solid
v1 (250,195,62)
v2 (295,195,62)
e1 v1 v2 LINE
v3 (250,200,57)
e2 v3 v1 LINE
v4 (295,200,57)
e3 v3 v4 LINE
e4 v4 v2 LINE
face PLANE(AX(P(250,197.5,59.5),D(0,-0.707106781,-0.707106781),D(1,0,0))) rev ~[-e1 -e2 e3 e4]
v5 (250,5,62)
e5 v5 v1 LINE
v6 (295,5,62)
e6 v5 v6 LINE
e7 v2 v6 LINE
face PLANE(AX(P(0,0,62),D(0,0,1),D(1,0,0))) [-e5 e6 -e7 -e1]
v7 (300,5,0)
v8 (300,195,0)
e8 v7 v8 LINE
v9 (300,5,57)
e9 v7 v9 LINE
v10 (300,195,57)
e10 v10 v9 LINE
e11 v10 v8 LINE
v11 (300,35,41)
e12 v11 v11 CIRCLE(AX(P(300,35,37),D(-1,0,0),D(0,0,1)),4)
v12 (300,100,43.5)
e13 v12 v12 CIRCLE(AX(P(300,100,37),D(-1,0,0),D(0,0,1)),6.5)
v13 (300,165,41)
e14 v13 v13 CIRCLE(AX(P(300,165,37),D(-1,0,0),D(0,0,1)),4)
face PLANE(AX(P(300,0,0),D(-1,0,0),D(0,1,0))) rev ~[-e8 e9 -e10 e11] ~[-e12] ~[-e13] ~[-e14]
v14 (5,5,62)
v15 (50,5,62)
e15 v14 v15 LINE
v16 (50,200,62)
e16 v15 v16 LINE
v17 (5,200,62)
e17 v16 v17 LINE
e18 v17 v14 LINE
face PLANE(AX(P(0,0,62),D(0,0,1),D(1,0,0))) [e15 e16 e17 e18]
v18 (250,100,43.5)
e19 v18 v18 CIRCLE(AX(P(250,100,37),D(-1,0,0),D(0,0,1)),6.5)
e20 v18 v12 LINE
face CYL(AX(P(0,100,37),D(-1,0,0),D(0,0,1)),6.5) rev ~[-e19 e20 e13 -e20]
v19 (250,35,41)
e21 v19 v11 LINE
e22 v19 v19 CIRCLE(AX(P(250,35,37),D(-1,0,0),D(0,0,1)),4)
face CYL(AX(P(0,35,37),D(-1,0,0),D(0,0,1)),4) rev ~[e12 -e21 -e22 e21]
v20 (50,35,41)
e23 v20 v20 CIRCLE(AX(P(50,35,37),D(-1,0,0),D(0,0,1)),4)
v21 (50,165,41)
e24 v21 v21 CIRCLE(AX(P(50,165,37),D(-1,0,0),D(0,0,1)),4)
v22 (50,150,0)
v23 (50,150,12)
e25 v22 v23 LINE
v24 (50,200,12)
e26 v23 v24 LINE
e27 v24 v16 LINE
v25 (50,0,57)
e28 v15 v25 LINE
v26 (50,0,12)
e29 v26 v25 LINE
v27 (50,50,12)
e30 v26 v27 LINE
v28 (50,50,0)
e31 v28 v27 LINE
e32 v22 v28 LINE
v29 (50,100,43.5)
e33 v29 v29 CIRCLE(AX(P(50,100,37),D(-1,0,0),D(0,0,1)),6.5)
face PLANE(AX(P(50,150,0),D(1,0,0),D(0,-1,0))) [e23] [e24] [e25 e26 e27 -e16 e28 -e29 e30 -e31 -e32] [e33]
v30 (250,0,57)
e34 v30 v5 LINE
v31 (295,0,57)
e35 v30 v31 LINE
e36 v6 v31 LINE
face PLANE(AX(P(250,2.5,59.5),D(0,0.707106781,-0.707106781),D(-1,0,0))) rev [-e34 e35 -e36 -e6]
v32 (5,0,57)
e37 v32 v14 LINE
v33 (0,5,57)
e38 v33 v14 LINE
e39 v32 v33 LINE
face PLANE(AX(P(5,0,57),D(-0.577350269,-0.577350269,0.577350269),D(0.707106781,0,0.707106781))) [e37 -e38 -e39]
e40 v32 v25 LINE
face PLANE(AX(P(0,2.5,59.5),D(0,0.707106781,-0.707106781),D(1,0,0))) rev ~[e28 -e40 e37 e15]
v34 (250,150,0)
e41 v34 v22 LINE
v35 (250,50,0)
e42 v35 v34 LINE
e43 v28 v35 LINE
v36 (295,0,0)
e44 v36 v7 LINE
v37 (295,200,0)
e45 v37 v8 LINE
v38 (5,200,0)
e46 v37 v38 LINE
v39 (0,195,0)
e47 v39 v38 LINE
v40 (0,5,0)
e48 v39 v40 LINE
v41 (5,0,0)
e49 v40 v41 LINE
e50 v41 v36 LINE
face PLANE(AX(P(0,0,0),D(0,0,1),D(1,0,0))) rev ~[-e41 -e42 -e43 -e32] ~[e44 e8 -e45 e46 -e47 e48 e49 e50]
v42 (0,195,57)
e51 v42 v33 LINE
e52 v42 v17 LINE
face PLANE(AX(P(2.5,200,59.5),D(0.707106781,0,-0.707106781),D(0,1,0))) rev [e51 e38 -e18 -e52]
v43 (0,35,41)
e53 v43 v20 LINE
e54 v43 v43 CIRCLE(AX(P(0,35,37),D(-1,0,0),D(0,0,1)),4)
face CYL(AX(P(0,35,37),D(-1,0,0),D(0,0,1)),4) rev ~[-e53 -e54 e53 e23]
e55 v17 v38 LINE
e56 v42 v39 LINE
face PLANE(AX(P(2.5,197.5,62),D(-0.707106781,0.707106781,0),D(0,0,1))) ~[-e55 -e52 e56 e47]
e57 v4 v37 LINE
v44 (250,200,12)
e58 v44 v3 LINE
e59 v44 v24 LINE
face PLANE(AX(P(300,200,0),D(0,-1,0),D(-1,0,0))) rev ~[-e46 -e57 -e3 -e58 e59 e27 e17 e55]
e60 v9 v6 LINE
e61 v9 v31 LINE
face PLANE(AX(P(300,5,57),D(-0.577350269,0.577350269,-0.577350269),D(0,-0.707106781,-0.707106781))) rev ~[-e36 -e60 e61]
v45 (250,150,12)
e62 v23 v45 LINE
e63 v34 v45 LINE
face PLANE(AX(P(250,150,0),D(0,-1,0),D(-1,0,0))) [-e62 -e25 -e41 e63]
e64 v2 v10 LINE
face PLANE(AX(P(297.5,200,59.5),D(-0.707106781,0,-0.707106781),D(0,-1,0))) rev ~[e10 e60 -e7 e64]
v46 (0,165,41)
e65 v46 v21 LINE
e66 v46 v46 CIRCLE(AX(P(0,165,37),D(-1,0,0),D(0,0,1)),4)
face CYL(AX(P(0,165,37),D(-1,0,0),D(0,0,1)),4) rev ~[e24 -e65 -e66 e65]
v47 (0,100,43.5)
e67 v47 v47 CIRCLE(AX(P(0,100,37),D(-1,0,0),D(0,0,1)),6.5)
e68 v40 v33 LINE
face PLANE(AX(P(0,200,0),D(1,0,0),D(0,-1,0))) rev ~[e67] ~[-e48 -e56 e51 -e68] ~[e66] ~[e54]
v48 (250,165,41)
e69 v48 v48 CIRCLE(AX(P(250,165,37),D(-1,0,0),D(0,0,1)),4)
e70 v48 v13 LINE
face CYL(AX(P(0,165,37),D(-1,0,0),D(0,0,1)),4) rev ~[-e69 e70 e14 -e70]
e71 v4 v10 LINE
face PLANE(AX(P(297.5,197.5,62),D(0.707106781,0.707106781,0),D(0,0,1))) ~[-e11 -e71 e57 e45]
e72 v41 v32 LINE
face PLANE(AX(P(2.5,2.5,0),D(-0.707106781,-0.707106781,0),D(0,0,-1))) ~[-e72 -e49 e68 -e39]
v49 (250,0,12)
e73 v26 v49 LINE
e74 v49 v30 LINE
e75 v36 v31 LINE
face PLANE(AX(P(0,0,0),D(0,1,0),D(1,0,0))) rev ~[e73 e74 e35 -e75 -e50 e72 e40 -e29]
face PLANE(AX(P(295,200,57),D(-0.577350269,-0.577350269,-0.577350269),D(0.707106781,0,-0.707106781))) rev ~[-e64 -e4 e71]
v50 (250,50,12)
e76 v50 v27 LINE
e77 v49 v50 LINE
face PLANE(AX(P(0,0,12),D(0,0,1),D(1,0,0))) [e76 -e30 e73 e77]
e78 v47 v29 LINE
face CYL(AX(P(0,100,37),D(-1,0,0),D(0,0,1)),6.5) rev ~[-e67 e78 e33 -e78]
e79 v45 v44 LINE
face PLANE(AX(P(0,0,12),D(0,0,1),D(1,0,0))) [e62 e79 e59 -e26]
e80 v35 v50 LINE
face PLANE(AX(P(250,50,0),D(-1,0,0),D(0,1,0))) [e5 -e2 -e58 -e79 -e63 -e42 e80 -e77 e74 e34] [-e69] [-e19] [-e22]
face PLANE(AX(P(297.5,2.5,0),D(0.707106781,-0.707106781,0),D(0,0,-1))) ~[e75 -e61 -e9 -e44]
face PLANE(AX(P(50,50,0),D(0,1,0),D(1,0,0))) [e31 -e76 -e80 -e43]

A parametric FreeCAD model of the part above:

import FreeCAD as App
import Part
import Sketcher


def edges_at(feature, points):
    """Names of the edges that pass closest to the given points."""
    edges = feature.Shape.Edges
    near = lambda p: min(range(len(edges)), key=lambda i: edges[i].distToShape(Part.Vertex(*p))[0])
    return sorted({f"Edge{near(p) + 1}" for p in points})


def add_polygon(sketch, points):
    """Adds a closed chain of lines whose ends are joined by coincident constraints."""
    first, n = sketch.GeometryCount, len(points)
    for a, b in zip(points, points[1:] + points[:1]):
        sketch.addGeometry(Part.LineSegment(App.Vector(*a, 0), App.Vector(*b, 0)), False)
    for i in range(n):
        sketch.addConstraint(Sketcher.Constraint("Coincident", first + i, 2, first + (i + 1) % n, 1))

doc = App.newDocument("Part")
body = doc.addObject("PartDesign::Body", "Body")

# Sketch on XY plane
sketch1 = doc.addObject("Sketcher::SketchObject", "Sketch")
body.addObject(sketch1)
sketch1.AttachmentSupport = (doc.XY_Plane, [""])
sketch1.MapMode = "FlatFace"
add_polygon(sketch1, [(0, 200), (0, 0), (300, 0), (300, 200)])  # lines 0-3
sketch1.addConstraint(Sketcher.Constraint("Vertical", 0))
sketch1.addConstraint(Sketcher.Constraint("Horizontal", 1))
sketch1.addConstraint(Sketcher.Constraint("Vertical", 2))
sketch1.addConstraint(Sketcher.Constraint("Horizontal", 3))
sketch1.addConstraint(Sketcher.Constraint("Coincident", 0, 2, -1, 1))
sketch1.addConstraint(Sketcher.Constraint("DistanceX", 1, 1, 1, 2, 300.0))
sketch1.addConstraint(Sketcher.Constraint("DistanceY", 0, 2, 0, 1, 200.0))
pad1 = doc.addObject("PartDesign::Pad", "Pad")
body.addObject(pad1)
pad1.Profile = sketch1
pad1.Length = 12

# Sketch on XY plane
sketch2 = doc.addObject("Sketcher::SketchObject", "Sketch001")
body.addObject(sketch2)
sketch2.AttachmentSupport = (doc.XY_Plane, [""])
sketch2.MapMode = "FlatFace"
add_polygon(sketch2, [(50, 150), (250, 150), (250, 50), (50, 50)])  # lines 0-3
sketch2.addConstraint(Sketcher.Constraint("Horizontal", 0))
sketch2.addConstraint(Sketcher.Constraint("Vertical", 1))
sketch2.addConstraint(Sketcher.Constraint("Horizontal", 2))
sketch2.addConstraint(Sketcher.Constraint("Vertical", 3))
sketch2.addConstraint(Sketcher.Constraint("DistanceX", 0, 1, 0, 2, 200.0))
sketch2.addConstraint(Sketcher.Constraint("DistanceY", 1, 2, 1, 1, 100.0))
sketch2.addConstraint(Sketcher.Constraint("DistanceX", -1, 1, 0, 2, 250.0))
sketch2.addConstraint(Sketcher.Constraint("DistanceY", -1, 1, 0, 2, 150.0))
pocket1 = doc.addObject("PartDesign::Pocket", "Pocket")
body.addObject(pocket1)
pocket1.Profile = sketch2
pocket1.Length = 19
pocket1.Reversed = True

# Sketch on XY plane
sketch3 = doc.addObject("Sketcher::SketchObject", "Sketch002")
body.addObject(sketch3)
sketch3.AttachmentSupport = (doc.XY_Plane, [""])
sketch3.MapMode = "FlatFace"
sketch3.AttachmentOffset = App.Placement(App.Vector(0, 0, 12), App.Rotation())
add_polygon(sketch3, [(0, 200), (0, 0), (50, 0), (50, 200)])  # lines 0-3
add_polygon(sketch3, [(250, 200), (250, 0), (300, 0), (300, 200)])  # lines 4-7
sketch3.addConstraint(Sketcher.Constraint("Vertical", 0))
sketch3.addConstraint(Sketcher.Constraint("Horizontal", 1))
sketch3.addConstraint(Sketcher.Constraint("Vertical", 2))
sketch3.addConstraint(Sketcher.Constraint("Horizontal", 3))
sketch3.addConstraint(Sketcher.Constraint("Vertical", 4))
sketch3.addConstraint(Sketcher.Constraint("Horizontal", 5))
sketch3.addConstraint(Sketcher.Constraint("Vertical", 6))
sketch3.addConstraint(Sketcher.Constraint("Horizontal", 7))
sketch3.addConstraint(Sketcher.Constraint("Coincident", 0, 2, -1, 1))
sketch3.addConstraint(Sketcher.Constraint("PointOnObject", 4, 2, -1))
sketch3.addConstraint(Sketcher.Constraint("Horizontal", 3, 2, 6, 2))
sketch3.addConstraint(Sketcher.Constraint("Equal", 3, 5))
sketch3.addConstraint(Sketcher.Constraint("DistanceX", 1, 1, 1, 2, 50.0))
sketch3.addConstraint(Sketcher.Constraint("DistanceY", 0, 2, 0, 1, 200.0))
sketch3.addConstraint(Sketcher.Constraint("DistanceX", 1, 2, 4, 2, 200.0))
pad2 = doc.addObject("PartDesign::Pad", "Pad001")
body.addObject(pad2)
pad2.Profile = sketch3
pad2.Length = 50

# Sketch on YZ plane
sketch4 = doc.addObject("Sketcher::SketchObject", "Sketch003")
body.addObject(sketch4)
sketch4.AttachmentSupport = (doc.YZ_Plane, [""])
sketch4.MapMode = "FlatFace"
sketch4.addGeometry(Part.Circle(App.Vector(35, 37, 0), App.Vector(0, 0, 1), 4), False)
sketch4.addGeometry(Part.Circle(App.Vector(100, 37, 0), App.Vector(0, 0, 1), 6.5), False)
sketch4.addGeometry(Part.Circle(App.Vector(165, 37, 0), App.Vector(0, 0, 1), 4), False)
sketch4.addConstraint(Sketcher.Constraint("Equal", 0, 2))
sketch4.addConstraint(Sketcher.Constraint("Horizontal", 0, 3, 1, 3))
sketch4.addConstraint(Sketcher.Constraint("Horizontal", 1, 3, 2, 3))
sketch4.addConstraint(Sketcher.Constraint("Diameter", 0, 8.0))
sketch4.addConstraint(Sketcher.Constraint("Diameter", 1, 13.0))
sketch4.addConstraint(Sketcher.Constraint("DistanceX", -1, 1, 0, 3, 35.0))
sketch4.addConstraint(Sketcher.Constraint("DistanceY", -1, 1, 0, 3, 37.0))
sketch4.addConstraint(Sketcher.Constraint("DistanceX", -1, 1, 1, 3, 100.0))
sketch4.addConstraint(Sketcher.Constraint("DistanceX", -1, 1, 2, 3, 165.0))
pocket2 = doc.addObject("PartDesign::Pocket", "Pocket001")
body.addObject(pocket2)
pocket2.Profile = sketch4
pocket2.Length = 900
pocket2.Reversed = True
doc.recompute()

chamfer = doc.addObject("PartDesign::Chamfer", "Chamfer")
body.addObject(chamfer)
chamfer.Base = (pocket2, edges_at(pocket2, [
    (0, 100, 62),
    (0, 0, 31),
    (25, 0, 62),
    (275, 0, 62),
    (300, 100, 62),
    (275, 200, 62),
    (300, 200, 31),
    (0, 200, 31),
    (300, 0, 31),
]))
chamfer.Size = 5

doc.recompute()
